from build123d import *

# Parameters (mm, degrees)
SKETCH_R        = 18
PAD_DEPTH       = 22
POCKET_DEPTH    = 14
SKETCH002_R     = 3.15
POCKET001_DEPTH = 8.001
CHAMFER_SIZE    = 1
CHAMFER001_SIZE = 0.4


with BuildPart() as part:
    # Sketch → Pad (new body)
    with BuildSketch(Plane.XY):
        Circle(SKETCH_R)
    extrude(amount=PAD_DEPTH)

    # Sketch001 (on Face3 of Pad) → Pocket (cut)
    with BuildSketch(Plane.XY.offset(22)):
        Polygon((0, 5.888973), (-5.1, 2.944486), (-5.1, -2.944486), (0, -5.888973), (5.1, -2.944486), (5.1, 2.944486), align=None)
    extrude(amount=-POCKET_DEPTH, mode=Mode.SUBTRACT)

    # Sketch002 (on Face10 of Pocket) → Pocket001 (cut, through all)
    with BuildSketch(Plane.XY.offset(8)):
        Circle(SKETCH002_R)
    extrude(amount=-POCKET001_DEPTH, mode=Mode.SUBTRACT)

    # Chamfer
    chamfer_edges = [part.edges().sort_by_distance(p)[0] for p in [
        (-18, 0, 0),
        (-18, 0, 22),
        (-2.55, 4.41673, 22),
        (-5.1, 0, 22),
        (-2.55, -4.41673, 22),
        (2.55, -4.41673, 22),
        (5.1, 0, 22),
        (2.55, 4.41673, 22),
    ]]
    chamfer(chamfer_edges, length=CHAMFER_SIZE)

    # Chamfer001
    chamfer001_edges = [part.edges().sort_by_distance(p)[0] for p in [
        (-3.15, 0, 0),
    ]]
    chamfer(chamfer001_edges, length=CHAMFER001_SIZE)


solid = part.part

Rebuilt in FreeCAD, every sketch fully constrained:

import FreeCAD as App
import Part
import Sketcher
from FreeCAD import Vector
Q = App.Units.Quantity


def edges_at(feature, points):
    """Names of the edges that pass closest to the given points."""
    edges = feature.Shape.Edges
    near = lambda p: min(range(len(edges)), key=lambda i: edges[i].distToShape(Part.Vertex(*p))[0])
    return sorted({f"Edge{near(p) + 1}" for p in points})

doc = App.newDocument("Part")
body = doc.addObject("PartDesign::Body", "Body")

sketch1 = body.newObject("Sketcher::SketchObject", "Sketch")
sketch1.AttachmentSupport = (doc.getObject("XY_Plane"), [""])
sketch1.MapMode = "FlatFace"
sketch1.addGeometry(Part.Circle(Vector(0, 0, 0), Vector(0, 0, 1), 18), False)
sketch1.addConstraint([
    Sketcher.Constraint("Coincident", 0, 3, -1, 1),
    Sketcher.Constraint("Diameter", 0, Q("36 mm")),
])
pad1 = body.newObject("PartDesign::Pad", "Pad")
pad1.Profile = sketch1
pad1.Length = 22

sketch2 = body.newObject("Sketcher::SketchObject", "Sketch001")
sketch2.AttachmentSupport = (doc.getObject("XY_Plane"), [""])
sketch2.MapMode = "FlatFace"
sketch2.AttachmentOffset = App.Placement(Vector(0, 0, 22), App.Rotation())
sketch2.addGeometry([
    Part.LineSegment(Vector(0, 6, 0), Vector(-5, 3, 0)),
    Part.LineSegment(Vector(-5, 3, 0), Vector(-5, -3, 0)),
    Part.LineSegment(Vector(-5, -3, 0), Vector(0, -6, 0)),
    Part.LineSegment(Vector(0, -6, 0), Vector(5, -3, 0)),
    Part.LineSegment(Vector(5, -3, 0), Vector(5, 3, 0)),
    Part.LineSegment(Vector(5, 3, 0), Vector(0, 6, 0)),
], False)
sketch2.addConstraint([
    Sketcher.Constraint("Coincident", 0, 2, 1, 1),
    Sketcher.Constraint("Coincident", 1, 2, 2, 1),
    Sketcher.Constraint("Coincident", 2, 2, 3, 1),
    Sketcher.Constraint("Coincident", 3, 2, 4, 1),
    Sketcher.Constraint("Coincident", 4, 2, 5, 1),
    Sketcher.Constraint("Coincident", 5, 2, 0, 1),
    Sketcher.Constraint("Vertical", 1),
    Sketcher.Constraint("Vertical", 4),
    Sketcher.Constraint("Symmetric", 0, 2, 3, 2, -1, 1),
    Sketcher.Constraint("Symmetric", 2, 2, 5, 2, -1, 1),
    Sketcher.Constraint("PointOnObject", 2, 2, -2),
    Sketcher.Constraint("Parallel", 2, 5),
    Sketcher.Constraint("Horizontal", 1, 2, 3, 2),
    Sketcher.Constraint("Angle", 0, Q("-149.999995 deg")),
    Sketcher.Constraint("DistanceX", 0, 2, -1, 1, Q("5.1 mm")),
    Sketcher.Constraint("DistanceY", 1, 2, 1, 1, Q("5.888972 mm")),
])
pocket1 = body.newObject("PartDesign::Pocket", "Pocket")
pocket1.Profile = sketch2
pocket1.Length = 14

sketch3 = body.newObject("Sketcher::SketchObject", "Sketch002")
sketch3.AttachmentSupport = (doc.getObject("XY_Plane"), [""])
sketch3.MapMode = "FlatFace"
sketch3.AttachmentOffset = App.Placement(Vector(0, 0, 8), App.Rotation())
sketch3.addGeometry(Part.Circle(Vector(0, 0, 0), Vector(0, 0, 1), 3.1), False)
sketch3.addConstraint([
    Sketcher.Constraint("Coincident", 0, 3, -1, 1),
    Sketcher.Constraint("Diameter", 0, Q("6.3 mm")),
])
pocket2 = body.newObject("PartDesign::Pocket", "Pocket001")
pocket2.Profile = sketch3
pocket2.Type = "ThroughAll"
doc.recompute()

chamfer = body.newObject("PartDesign::Chamfer", "Chamfer")
chamfer.Base = (pocket2, edges_at(pocket2, [
    (-18, 0, 0),
    (-18, 0, 22),
    (-2.55, 4.417, 22),
    (-5.1, 0, 22),
    (-2.55, -4.417, 22),
    (2.55, -4.417, 22),
    (5.1, 0, 22),
    (2.55, 4.417, 22),
]))
chamfer.Size = 1
doc.recompute()

chamfer2 = body.newObject("PartDesign::Chamfer", "Chamfer001")
chamfer2.Base = (chamfer, edges_at(chamfer, [(-3.15, 0, 0)]))
chamfer2.Size = 0.4

doc.recompute()
